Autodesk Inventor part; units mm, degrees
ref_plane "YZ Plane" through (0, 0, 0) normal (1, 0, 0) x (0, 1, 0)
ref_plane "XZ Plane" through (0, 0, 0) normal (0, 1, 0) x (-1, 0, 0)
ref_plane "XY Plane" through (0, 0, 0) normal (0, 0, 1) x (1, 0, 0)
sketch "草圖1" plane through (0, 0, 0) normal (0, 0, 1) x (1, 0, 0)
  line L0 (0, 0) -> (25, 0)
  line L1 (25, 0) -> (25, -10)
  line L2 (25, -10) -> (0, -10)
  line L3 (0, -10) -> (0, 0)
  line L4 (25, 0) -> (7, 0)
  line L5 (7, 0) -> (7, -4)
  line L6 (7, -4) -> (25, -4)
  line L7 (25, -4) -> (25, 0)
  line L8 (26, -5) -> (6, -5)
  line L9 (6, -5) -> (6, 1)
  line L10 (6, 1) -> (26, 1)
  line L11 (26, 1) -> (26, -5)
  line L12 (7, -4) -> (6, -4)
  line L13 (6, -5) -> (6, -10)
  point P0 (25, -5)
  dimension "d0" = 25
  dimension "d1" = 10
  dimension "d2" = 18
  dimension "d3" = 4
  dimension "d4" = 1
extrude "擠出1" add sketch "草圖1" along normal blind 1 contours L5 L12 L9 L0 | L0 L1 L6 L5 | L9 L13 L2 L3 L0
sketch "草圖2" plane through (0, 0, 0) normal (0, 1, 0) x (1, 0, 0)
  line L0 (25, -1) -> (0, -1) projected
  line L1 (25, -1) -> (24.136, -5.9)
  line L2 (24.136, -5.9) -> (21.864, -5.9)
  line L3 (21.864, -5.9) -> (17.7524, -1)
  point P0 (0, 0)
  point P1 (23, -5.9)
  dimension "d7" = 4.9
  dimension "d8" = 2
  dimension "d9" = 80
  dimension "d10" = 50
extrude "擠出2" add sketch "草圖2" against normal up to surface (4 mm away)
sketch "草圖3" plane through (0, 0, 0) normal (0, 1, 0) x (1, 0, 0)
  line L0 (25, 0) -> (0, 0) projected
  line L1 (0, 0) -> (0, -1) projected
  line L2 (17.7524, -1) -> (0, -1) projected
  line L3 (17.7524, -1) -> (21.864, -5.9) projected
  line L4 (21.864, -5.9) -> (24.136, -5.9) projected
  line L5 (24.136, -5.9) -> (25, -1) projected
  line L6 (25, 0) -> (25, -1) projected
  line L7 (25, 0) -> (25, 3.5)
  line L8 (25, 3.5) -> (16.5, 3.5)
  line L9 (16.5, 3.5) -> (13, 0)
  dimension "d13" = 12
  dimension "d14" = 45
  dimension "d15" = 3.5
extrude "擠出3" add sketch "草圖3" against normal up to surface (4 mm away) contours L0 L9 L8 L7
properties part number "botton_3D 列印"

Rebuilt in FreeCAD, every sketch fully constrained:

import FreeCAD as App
import Part
import Sketcher
Q = App.Units.Quantity


def add_polygon(sketch, points):
    """Adds a closed chain of lines whose ends are joined by coincident constraints."""
    first, n = sketch.GeometryCount, len(points)
    for a, b in zip(points, points[1:] + points[:1]):
        sketch.addGeometry(Part.LineSegment(App.Vector(*a, 0), App.Vector(*b, 0)), False)
    for i in range(n):
        sketch.addConstraint(Sketcher.Constraint("Coincident", first + i, 2, first + (i + 1) % n, 1))

doc = App.newDocument("Part")
body = doc.addObject("PartDesign::Body", "Body")

# Sketch on XY plane
sketch1 = doc.addObject("Sketcher::SketchObject", "Sketch")
body.addObject(sketch1)
sketch1.AttachmentSupport = (doc.XY_Plane, [""])
sketch1.MapMode = "FlatFace"
add_polygon(sketch1, [(6, -4), (25, -4), (25, 0), (0, 0), (0, -10), (6, -10)])  # lines 0-5
sketch1.addConstraint([
    Sketcher.Constraint("Horizontal", 0),
    Sketcher.Constraint("Vertical", 1),
    Sketcher.Constraint("Horizontal", 2),
    Sketcher.Constraint("Vertical", 3),
    Sketcher.Constraint("Horizontal", 4),
    Sketcher.Constraint("Vertical", 5),
    Sketcher.Constraint("Coincident", 2, 2, -1, 1),
    Sketcher.Constraint("Equal", 4, 5),
    Sketcher.Constraint("DistanceX", 2, 2, 2, 1, 25.0),
    Sketcher.Constraint("DistanceY", 1, 1, 1, 2, 4.0),
    Sketcher.Constraint("DistanceY", 3, 2, 3, 1, 10.0),
])
pad1 = doc.addObject("PartDesign::Pad", "Pad")
body.addObject(pad1)
pad1.Profile = sketch1
pad1.Length = 1

# Sketch on XZ plane
sketch2 = doc.addObject("Sketcher::SketchObject", "Sketch001")
body.addObject(sketch2)
sketch2.AttachmentSupport = (doc.XZ_Plane, [""])
sketch2.MapMode = "FlatFace"
add_polygon(sketch2, [(24.1, 5.9), (25, 1), (17.8, 1), (21.9, 5.9)])  # lines 0-3
sketch2.addConstraint([
    Sketcher.Constraint("Horizontal", 1),
    Sketcher.Constraint("Horizontal", 3),
    Sketcher.Constraint("Angle", 0, Q("-80 deg")),
    Sketcher.Constraint("Angle", 2, Q("50 deg")),
    Sketcher.Constraint("DistanceY", 0, 2, 2, 2, 4.9),
    Sketcher.Constraint("DistanceX", -1, 1, 0, 2, 25.0),
    Sketcher.Constraint("DistanceY", -1, 1, 0, 2, 1.0),
    Sketcher.Constraint("DistanceX", 3, 1, 3, 2, 2.272),
])
pad2 = doc.addObject("PartDesign::Pad", "Pad001")
body.addObject(pad2)
pad2.Profile = sketch2
pad2.Length = 4

# Sketch on XZ plane
sketch3 = doc.addObject("Sketcher::SketchObject", "Sketch002")
body.addObject(sketch3)
sketch3.AttachmentSupport = (doc.XZ_Plane, [""])
sketch3.MapMode = "FlatFace"
add_polygon(sketch3, [(13, 0), (25, 0), (25, -3.5), (16.5, -3.5)])  # lines 0-3
sketch3.addConstraint([
    Sketcher.Constraint("Horizontal", 0),
    Sketcher.Constraint("Vertical", 1),
    Sketcher.Constraint("Horizontal", 2),
    Sketcher.Constraint("PointOnObject", 0, 2, -1),
    Sketcher.Constraint("DistanceX", 0, 1, 0, 2, 12.0),
    Sketcher.Constraint("DistanceY", 1, 2, 1, 1, 3.5),
    Sketcher.Constraint("DistanceX", 3, 2, 2, 2, 3.5),
    Sketcher.Constraint("DistanceX", -1, 1, 0, 2, 25.0),
])
pad3 = doc.addObject("PartDesign::Pad", "Pad002")
body.addObject(pad3)
pad3.Profile = sketch3
pad3.Length = 4

doc.recompute()
